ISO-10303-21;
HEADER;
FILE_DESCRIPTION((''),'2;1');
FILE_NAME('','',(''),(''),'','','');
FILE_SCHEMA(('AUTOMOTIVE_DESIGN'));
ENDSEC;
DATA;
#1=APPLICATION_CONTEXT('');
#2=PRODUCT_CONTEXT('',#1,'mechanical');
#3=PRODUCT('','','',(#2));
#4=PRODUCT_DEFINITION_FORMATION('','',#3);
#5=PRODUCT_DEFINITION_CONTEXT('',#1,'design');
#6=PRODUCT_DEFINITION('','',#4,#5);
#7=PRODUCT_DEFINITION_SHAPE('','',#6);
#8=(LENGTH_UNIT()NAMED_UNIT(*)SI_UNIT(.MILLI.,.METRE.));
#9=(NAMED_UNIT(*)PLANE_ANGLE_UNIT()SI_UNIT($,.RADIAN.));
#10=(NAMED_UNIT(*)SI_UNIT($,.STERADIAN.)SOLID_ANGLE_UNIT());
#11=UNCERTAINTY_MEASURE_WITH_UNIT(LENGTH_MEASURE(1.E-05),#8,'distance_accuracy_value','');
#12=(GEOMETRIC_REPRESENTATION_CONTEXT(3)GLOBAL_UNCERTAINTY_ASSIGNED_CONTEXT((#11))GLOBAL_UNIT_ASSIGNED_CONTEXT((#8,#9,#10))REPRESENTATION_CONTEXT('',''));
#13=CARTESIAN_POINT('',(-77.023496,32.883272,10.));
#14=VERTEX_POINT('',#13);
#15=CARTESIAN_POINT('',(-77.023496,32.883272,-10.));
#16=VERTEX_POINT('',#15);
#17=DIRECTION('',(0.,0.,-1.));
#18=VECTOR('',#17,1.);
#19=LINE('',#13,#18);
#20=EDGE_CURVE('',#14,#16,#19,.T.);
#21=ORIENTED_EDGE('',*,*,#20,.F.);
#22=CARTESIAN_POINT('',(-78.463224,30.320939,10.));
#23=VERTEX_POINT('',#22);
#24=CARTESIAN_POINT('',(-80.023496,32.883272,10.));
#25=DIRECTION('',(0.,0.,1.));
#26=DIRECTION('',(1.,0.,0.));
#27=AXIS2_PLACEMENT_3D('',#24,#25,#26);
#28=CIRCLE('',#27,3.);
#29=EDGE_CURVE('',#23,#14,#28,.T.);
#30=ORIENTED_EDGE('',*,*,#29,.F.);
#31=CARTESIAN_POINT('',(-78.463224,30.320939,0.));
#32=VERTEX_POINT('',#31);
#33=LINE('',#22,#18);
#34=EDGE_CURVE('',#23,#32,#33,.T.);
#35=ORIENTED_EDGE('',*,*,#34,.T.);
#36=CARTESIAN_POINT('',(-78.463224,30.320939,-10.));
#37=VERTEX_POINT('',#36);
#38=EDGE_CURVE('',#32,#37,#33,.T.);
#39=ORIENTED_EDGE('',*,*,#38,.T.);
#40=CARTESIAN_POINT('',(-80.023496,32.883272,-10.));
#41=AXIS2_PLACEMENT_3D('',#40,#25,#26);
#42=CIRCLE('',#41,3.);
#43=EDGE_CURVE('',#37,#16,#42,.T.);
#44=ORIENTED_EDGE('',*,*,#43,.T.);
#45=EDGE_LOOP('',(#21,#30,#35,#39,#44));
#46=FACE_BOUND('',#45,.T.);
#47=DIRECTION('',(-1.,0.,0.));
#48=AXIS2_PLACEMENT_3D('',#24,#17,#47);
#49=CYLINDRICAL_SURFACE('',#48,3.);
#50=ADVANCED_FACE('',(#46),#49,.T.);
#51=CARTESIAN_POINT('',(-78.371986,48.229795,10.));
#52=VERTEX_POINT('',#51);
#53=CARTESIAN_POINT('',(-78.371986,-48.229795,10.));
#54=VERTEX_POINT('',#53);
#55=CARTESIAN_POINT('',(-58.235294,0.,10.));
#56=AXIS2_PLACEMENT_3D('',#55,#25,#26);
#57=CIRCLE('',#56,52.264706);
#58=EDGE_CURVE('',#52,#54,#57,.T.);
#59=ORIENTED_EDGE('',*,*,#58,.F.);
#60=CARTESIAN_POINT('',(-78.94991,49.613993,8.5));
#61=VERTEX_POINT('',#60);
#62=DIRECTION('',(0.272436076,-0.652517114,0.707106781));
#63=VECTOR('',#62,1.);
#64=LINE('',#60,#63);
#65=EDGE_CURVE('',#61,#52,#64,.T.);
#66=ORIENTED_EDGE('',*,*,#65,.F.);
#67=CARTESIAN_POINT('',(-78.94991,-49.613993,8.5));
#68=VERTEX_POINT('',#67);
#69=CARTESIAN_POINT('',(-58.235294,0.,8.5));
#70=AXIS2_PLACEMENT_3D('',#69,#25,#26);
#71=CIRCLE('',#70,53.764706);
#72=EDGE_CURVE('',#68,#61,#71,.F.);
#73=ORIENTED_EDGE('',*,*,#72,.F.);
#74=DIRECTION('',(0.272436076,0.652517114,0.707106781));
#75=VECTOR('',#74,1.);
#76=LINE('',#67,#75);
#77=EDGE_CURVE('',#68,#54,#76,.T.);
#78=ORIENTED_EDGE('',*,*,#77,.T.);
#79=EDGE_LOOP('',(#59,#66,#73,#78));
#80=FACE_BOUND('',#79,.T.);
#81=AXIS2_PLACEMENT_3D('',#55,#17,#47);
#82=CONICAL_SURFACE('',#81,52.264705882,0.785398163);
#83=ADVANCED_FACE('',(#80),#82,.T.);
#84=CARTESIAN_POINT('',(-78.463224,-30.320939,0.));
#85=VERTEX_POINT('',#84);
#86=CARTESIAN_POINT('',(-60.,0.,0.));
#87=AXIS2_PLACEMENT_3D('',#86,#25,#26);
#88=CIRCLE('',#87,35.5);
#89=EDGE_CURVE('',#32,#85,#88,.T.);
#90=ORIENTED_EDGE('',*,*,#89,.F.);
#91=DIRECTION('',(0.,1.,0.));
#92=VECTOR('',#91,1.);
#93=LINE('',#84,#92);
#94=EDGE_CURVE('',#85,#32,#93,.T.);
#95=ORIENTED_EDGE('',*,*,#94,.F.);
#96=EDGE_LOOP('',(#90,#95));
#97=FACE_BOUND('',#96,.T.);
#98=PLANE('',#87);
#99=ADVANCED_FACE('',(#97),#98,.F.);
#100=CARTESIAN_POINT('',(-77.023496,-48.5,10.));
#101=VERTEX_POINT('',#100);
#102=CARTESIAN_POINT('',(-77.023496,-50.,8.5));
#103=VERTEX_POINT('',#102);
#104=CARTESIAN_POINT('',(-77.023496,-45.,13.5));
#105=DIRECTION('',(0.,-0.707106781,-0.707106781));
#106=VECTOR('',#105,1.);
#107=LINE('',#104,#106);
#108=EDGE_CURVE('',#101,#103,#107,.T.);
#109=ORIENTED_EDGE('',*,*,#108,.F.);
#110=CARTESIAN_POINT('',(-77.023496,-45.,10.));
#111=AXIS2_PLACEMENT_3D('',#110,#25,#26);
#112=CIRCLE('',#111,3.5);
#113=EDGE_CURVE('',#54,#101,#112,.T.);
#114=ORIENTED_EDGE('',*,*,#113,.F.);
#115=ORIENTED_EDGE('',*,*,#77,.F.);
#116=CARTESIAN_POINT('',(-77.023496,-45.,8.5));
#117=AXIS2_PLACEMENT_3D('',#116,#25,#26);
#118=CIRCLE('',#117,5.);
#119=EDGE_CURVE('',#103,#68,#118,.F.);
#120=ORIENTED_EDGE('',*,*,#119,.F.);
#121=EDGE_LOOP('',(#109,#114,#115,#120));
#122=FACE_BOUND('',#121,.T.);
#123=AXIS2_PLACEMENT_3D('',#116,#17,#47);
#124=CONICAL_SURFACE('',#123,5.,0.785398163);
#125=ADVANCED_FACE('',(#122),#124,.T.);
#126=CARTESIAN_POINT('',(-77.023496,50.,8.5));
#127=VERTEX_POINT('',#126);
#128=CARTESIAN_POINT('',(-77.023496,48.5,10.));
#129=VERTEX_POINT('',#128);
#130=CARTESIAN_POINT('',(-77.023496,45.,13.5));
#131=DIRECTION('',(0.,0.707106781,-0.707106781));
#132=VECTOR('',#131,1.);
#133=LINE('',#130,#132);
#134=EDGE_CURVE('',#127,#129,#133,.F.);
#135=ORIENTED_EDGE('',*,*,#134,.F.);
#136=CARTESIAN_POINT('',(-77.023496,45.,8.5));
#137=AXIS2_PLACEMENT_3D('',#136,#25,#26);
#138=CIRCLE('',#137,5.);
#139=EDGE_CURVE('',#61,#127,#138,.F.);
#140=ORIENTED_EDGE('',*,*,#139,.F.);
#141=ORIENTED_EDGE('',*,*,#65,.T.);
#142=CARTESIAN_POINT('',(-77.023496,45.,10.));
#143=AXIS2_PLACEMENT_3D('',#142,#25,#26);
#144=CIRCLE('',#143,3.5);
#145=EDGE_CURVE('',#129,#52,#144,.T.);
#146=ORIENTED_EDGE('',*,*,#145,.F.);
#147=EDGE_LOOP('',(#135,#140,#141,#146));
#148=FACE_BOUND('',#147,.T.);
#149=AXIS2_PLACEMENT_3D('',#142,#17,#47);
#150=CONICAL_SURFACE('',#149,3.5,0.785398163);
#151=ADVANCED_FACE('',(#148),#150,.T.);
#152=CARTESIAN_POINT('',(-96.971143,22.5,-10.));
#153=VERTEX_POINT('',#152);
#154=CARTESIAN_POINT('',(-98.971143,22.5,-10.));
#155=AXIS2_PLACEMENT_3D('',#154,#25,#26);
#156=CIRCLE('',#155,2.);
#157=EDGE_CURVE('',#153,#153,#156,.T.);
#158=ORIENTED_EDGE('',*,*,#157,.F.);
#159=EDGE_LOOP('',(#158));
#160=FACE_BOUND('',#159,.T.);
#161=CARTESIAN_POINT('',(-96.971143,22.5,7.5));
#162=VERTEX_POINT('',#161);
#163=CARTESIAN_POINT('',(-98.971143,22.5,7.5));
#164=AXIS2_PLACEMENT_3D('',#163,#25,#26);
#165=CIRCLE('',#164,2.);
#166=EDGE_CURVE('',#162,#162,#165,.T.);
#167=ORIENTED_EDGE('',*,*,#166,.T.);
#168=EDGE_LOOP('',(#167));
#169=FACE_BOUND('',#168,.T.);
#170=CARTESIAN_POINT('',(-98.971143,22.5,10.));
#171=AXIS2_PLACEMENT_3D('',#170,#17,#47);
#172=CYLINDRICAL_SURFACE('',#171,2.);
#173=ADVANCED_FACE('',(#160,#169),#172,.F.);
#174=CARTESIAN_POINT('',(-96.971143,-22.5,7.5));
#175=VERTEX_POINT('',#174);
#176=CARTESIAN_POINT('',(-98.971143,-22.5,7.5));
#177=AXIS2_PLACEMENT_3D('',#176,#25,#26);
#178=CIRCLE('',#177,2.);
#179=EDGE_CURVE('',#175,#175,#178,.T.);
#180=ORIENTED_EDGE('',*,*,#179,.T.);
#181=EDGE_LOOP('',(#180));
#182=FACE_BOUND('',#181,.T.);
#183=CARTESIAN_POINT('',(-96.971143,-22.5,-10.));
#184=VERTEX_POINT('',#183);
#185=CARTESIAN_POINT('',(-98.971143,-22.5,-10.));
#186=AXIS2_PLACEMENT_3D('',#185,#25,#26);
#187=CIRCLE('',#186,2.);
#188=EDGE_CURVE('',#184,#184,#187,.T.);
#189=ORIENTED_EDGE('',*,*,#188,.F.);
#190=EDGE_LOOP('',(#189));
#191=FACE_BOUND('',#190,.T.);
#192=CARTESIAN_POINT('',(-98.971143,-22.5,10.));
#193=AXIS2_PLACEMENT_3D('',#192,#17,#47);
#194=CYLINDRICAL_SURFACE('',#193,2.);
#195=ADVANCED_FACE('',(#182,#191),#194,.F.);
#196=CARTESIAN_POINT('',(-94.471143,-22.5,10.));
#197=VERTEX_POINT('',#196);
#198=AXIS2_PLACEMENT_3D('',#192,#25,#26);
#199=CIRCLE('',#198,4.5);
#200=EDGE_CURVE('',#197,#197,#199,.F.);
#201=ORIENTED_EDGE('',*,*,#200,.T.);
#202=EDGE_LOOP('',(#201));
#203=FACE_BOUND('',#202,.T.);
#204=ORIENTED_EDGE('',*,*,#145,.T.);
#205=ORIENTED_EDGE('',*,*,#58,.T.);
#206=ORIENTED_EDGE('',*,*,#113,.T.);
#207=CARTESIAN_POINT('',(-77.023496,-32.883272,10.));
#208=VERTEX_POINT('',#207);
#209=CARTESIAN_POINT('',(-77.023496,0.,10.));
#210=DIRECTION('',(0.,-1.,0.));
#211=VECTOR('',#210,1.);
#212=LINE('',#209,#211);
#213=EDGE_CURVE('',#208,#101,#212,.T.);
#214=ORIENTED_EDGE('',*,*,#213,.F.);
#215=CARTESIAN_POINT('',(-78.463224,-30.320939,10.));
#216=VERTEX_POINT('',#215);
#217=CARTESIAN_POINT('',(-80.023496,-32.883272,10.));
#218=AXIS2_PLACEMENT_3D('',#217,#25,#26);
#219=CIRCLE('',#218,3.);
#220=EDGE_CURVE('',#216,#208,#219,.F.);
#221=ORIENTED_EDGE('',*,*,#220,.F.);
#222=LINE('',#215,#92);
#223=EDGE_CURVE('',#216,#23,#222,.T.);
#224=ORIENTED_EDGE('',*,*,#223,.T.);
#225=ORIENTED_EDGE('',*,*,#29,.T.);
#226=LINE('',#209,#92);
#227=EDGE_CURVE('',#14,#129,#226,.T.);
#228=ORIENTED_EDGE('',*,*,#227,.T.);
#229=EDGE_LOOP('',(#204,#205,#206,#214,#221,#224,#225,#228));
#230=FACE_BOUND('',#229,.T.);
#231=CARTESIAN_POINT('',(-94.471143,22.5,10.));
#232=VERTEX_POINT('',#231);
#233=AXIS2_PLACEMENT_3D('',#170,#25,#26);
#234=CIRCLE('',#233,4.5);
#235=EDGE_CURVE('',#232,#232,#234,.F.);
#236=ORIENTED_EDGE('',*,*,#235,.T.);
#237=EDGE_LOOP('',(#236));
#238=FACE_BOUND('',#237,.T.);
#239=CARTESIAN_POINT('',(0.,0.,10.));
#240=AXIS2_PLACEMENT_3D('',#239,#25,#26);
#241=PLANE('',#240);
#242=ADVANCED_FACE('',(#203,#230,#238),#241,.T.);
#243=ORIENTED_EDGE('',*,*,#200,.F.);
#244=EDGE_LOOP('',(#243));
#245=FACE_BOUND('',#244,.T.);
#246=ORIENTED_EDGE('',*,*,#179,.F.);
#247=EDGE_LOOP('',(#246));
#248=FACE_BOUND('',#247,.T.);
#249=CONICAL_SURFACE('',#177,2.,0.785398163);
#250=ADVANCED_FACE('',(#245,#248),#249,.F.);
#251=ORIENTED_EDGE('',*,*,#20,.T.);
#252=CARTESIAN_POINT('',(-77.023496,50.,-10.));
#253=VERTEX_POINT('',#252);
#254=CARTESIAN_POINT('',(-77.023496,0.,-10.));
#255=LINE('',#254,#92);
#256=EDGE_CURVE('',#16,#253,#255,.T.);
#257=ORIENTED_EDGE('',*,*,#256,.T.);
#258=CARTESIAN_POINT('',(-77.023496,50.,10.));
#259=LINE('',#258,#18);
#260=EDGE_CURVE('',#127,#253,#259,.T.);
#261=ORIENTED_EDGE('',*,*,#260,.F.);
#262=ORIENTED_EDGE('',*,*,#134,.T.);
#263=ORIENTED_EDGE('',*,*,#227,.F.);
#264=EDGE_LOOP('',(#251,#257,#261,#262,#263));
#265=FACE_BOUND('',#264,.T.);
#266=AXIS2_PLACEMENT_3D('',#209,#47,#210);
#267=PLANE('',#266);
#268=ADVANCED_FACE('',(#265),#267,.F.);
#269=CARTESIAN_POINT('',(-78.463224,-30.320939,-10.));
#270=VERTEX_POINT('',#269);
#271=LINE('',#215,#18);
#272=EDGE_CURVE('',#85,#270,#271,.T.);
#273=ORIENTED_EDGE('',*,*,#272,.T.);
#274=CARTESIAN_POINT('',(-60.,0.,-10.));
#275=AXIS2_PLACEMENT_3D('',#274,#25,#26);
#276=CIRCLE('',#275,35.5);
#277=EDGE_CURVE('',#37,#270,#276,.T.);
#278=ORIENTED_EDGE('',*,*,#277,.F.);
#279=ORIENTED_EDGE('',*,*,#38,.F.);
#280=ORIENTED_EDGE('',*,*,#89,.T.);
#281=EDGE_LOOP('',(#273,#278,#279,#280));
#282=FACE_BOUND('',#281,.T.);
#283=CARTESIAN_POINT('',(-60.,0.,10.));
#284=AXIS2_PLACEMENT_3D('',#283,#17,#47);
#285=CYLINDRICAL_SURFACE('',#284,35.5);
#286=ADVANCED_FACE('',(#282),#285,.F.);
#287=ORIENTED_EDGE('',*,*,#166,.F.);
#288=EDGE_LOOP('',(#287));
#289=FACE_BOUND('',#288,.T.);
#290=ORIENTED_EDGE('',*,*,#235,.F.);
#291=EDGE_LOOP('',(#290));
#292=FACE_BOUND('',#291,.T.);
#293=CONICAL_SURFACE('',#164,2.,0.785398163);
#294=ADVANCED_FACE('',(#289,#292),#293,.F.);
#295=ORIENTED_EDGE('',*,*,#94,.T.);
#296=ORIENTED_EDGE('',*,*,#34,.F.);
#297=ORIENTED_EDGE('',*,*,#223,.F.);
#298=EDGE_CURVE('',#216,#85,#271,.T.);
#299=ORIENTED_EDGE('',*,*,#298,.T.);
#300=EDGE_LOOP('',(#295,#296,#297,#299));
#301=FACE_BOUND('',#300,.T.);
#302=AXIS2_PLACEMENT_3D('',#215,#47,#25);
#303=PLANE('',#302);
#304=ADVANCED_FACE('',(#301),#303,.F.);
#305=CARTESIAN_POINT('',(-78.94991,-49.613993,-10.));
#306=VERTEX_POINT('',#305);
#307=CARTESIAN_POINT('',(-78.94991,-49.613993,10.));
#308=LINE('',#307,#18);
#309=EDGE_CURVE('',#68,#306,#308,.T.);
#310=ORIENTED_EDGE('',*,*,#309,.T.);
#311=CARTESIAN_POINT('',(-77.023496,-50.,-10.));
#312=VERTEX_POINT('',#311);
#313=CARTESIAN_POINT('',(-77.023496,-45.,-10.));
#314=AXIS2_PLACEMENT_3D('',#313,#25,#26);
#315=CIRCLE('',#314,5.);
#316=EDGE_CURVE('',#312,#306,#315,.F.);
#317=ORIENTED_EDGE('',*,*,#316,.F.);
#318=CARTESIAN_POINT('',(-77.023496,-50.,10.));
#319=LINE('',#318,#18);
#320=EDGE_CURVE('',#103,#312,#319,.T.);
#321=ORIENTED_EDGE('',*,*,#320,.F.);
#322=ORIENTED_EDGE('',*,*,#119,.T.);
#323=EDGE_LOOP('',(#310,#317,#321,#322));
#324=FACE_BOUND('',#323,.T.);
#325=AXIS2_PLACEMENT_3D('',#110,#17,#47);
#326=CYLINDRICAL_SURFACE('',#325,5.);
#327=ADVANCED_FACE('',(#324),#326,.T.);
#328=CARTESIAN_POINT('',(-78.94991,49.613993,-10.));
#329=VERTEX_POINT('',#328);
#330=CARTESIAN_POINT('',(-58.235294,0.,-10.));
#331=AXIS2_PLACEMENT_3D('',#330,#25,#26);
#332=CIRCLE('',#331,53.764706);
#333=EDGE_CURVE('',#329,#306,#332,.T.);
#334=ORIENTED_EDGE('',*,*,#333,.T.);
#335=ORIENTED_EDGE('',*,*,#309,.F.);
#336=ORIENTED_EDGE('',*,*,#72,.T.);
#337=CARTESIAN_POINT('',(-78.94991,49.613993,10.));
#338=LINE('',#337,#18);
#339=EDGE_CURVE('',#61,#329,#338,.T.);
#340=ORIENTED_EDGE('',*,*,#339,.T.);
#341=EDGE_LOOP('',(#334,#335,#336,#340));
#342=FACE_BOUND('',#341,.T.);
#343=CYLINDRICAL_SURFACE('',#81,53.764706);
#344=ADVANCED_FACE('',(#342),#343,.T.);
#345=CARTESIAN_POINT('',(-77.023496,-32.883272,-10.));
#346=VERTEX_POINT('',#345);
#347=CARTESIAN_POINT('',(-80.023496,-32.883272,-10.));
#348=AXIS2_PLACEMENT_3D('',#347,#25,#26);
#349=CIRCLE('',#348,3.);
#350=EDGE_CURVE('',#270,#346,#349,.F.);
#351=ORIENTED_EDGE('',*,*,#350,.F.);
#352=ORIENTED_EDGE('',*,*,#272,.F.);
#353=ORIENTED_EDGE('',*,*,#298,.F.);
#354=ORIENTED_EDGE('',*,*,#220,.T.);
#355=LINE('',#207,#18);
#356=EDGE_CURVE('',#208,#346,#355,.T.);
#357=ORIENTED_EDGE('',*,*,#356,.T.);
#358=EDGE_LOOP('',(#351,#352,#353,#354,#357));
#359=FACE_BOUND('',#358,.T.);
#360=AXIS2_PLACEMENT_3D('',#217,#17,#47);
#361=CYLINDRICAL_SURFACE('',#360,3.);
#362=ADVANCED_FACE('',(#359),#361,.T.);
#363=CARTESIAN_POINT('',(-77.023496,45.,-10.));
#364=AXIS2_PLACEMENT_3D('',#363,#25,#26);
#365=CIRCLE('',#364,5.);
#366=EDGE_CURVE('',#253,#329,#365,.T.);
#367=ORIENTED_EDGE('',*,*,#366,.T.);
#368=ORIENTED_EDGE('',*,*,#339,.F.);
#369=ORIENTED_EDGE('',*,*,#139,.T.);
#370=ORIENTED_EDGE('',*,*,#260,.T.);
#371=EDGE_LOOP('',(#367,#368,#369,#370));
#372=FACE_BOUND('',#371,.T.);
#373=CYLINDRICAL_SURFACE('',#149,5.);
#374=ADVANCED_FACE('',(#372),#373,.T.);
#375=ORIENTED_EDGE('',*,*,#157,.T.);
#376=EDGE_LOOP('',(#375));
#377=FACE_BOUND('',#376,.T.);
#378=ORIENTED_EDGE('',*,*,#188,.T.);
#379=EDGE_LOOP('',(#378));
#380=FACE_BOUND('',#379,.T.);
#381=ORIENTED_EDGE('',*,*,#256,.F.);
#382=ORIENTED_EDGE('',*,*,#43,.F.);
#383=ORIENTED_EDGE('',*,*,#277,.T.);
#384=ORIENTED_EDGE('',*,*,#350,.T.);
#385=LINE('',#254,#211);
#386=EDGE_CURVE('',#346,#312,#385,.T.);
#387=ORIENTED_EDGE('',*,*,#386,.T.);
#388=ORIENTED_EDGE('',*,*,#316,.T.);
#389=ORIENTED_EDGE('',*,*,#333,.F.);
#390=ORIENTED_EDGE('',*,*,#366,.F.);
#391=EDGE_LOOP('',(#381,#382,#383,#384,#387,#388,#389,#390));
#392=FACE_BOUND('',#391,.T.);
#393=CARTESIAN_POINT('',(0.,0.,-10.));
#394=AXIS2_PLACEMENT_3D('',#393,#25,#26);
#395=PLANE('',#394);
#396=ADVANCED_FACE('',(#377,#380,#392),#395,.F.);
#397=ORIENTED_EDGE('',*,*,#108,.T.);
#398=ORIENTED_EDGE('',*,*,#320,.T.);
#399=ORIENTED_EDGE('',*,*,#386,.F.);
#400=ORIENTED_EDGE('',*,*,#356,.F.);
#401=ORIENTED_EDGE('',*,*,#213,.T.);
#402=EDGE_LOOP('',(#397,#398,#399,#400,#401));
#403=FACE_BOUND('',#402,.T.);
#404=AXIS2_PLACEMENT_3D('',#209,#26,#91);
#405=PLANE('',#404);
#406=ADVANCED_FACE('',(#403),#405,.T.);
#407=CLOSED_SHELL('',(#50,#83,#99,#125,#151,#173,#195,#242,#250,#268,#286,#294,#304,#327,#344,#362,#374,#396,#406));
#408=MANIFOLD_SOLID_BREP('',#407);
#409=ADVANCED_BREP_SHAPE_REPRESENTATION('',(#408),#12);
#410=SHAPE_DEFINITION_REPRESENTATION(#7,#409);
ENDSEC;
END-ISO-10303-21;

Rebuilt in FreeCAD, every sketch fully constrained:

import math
import FreeCAD as App
import Part
import Sketcher

V = App.Vector
Q = App.Units.Quantity


def edges_at(feature, points):
    """Names of the edges that pass closest to the given points."""
    edges = feature.Shape.Edges
    near = lambda p: min(range(len(edges)), key=lambda i: edges[i].distToShape(Part.Vertex(*p))[0])
    return sorted({f"Edge{near(p) + 1}" for p in points})

doc = App.newDocument("Part")
body = doc.addObject("PartDesign::Body", "Body")

sketch1 = body.newObject("Sketcher::SketchObject", "Sketch")
sketch1.AttachmentSupport = (doc.getObject("XY_Plane"), [""])
sketch1.MapMode = "FlatFace"
sketch1.addGeometry(Part.LineSegment(V(-77.023496, 32.883272, 0), V(-77.023496, 50, 0)), False)
sketch1.addGeometry(Part.ArcOfCircle(Part.Circle(V(-77.023496, 45, 0), V(0, 0, 1), 5), math.radians(90), math.radians(112.661298)), False)
sketch1.addGeometry(Part.ArcOfCircle(Part.Circle(V(-58.235294, 0, 0), V(0, 0, 1), 53.764706), math.radians(112.661298), math.radians(247.338702)), False)
sketch1.addGeometry(Part.ArcOfCircle(Part.Circle(V(-77.023496, -45, 0), V(0, 0, 1), 5), math.radians(-112.661298), math.radians(-90)), False)
sketch1.addGeometry(Part.LineSegment(V(-77.023496, -50, 0), V(-77.023496, -32.883272, 0)), False)
sketch1.addGeometry(Part.ArcOfCircle(Part.Circle(V(-80.023496, -32.883272, 0), V(0, 0, 1), 3), math.radians(0), math.radians(58.661657)), False)
sketch1.addGeometry(Part.ArcOfCircle(Part.Circle(V(-60, 0, 0), V(0, 0, 1), 35.5), math.radians(121.338343), math.radians(238.661657)), False)
sketch1.addGeometry(Part.ArcOfCircle(Part.Circle(V(-80.023496, 32.883272, 0), V(0, 0, 1), 3), math.radians(-58.661657), math.radians(0)), False)
sketch1.addGeometry(Part.Circle(V(-98.971143, -22.5, 0), V(0, 0, 1), 2), False)
sketch1.addGeometry(Part.Circle(V(-98.971143, 22.5, 0), V(0, 0, 1), 2), False)
sketch1.addConstraint(Sketcher.Constraint("Coincident", 0, 2, 1, 1))
sketch1.addConstraint(Sketcher.Constraint("Tangent", 1, 2, 2, 1))
sketch1.addConstraint(Sketcher.Constraint("Tangent", 2, 2, 3, 1))
sketch1.addConstraint(Sketcher.Constraint("Coincident", 3, 2, 4, 1))
sketch1.addConstraint(Sketcher.Constraint("Tangent", 4, 2, 5, 1))
sketch1.addConstraint(Sketcher.Constraint("Tangent", 5, 2, 6, 2))
sketch1.addConstraint(Sketcher.Constraint("Tangent", 6, 1, 7, 1))
sketch1.addConstraint(Sketcher.Constraint("Tangent", 7, 2, 0, 1))
sketch1.addConstraint(Sketcher.Constraint("Vertical", 0))
sketch1.addConstraint(Sketcher.Constraint("Vertical", 4))
sketch1.addConstraint(Sketcher.Constraint("Equal", 1, 3))
sketch1.addConstraint(Sketcher.Constraint("Equal", 5, 7))
sketch1.addConstraint(Sketcher.Constraint("Equal", 8, 9))
sketch1.addConstraint(Sketcher.Constraint("Symmetric", 1, 3, 3, 3, -1))
sketch1.addConstraint(Sketcher.Constraint("Symmetric", 5, 3, 7, 3, -1))
sketch1.addConstraint(Sketcher.Constraint("Symmetric", 8, 3, 9, 3, -1))
sketch1.addConstraint(Sketcher.Constraint("Vertical", 3, 3, 0, 2))
sketch1.addConstraint(Sketcher.Constraint("Diameter", 8, Q("4 mm")))
sketch1.addConstraint(Sketcher.Constraint("Radius", 1, Q("5 mm")))
sketch1.addConstraint(Sketcher.Constraint("Radius", 5, Q("3 mm")))
sketch1.addConstraint(Sketcher.Constraint("Radius", 6, Q("35.5 mm")))
sketch1.addConstraint(Sketcher.Constraint("DistanceY", -1, 1, 1, 3, Q("45 mm")))
sketch1.addConstraint(Sketcher.Constraint("DistanceX", 6, 3, -1, 1, Q("60 mm")))
sketch1.addConstraint(Sketcher.Constraint("DistanceY", 8, 3, 9, 3, Q("45 mm")))
sketch1.addConstraint(Sketcher.Constraint("Radius", 2, Q("53.764706 mm")))
sketch1.addConstraint(Sketcher.Constraint("DistanceY", 0, 1, 0, 2, Q("17.116728 mm")))
sketch1.addConstraint(Sketcher.Constraint("DistanceX", 8, 3, 2, 3, Q("40.735849 mm")))
pad1 = body.newObject("PartDesign::Pad", "Pad")
pad1.Profile = sketch1
pad1.Length = 20
pad1.Midplane = True
doc.recompute()

chamfer = body.newObject("PartDesign::Chamfer", "Chamfer")
chamfer.Base = (pad1, edges_at(pad1, [(-100.971, 22.5, 10), (-100.971, -22.5, 10)]))
chamfer.Size = 2.5
doc.recompute()

chamfer2 = body.newObject("PartDesign::Chamfer", "Chamfer001")
chamfer2.Base = (chamfer, edges_at(chamfer, [(-78.006, 49.903, 10), (-112, 0, 10), (-78.006, -49.903, 10)]))
chamfer2.Size = 1.5

sketch2 = body.newObject("Sketcher::SketchObject", "Sketch001")
sketch2.AttachmentSupport = (doc.getObject("XY_Plane"), [""])
sketch2.MapMode = "FlatFace"
sketch2.AttachmentOffset = App.Placement(V(0, 0, 10), App.Rotation())
sketch2.addGeometry(Part.LineSegment(V(-78.463224, -30.320939, 0), V(-78.463224, 30.320939, 0)), False)
sketch2.addGeometry(Part.ArcOfCircle(Part.Circle(V(-60, 0, 0), V(0, 0, 1), 35.5), math.radians(121.338343), math.radians(238.661657)), False)
sketch2.addConstraint(Sketcher.Constraint("Coincident", 0, 1, 1, 2))
sketch2.addConstraint(Sketcher.Constraint("Coincident", 1, 1, 0, 2))
sketch2.addConstraint(Sketcher.Constraint("Vertical", 0))
sketch2.addConstraint(Sketcher.Constraint("PointOnObject", 1, 3, -1))
sketch2.addConstraint(Sketcher.Constraint("Radius", 1, Q("35.5 mm")))
sketch2.addConstraint(Sketcher.Constraint("DistanceX", 1, 3, -1, 1, Q("60 mm")))
sketch2.addConstraint(Sketcher.Constraint("DistanceY", 0, 1, 0, 2, Q("60.641879 mm")))
pad2 = body.newObject("PartDesign::Pad", "Pad001")
pad2.Profile = sketch2
pad2.Length = 10
pad2.Reversed = True

doc.recompute()
